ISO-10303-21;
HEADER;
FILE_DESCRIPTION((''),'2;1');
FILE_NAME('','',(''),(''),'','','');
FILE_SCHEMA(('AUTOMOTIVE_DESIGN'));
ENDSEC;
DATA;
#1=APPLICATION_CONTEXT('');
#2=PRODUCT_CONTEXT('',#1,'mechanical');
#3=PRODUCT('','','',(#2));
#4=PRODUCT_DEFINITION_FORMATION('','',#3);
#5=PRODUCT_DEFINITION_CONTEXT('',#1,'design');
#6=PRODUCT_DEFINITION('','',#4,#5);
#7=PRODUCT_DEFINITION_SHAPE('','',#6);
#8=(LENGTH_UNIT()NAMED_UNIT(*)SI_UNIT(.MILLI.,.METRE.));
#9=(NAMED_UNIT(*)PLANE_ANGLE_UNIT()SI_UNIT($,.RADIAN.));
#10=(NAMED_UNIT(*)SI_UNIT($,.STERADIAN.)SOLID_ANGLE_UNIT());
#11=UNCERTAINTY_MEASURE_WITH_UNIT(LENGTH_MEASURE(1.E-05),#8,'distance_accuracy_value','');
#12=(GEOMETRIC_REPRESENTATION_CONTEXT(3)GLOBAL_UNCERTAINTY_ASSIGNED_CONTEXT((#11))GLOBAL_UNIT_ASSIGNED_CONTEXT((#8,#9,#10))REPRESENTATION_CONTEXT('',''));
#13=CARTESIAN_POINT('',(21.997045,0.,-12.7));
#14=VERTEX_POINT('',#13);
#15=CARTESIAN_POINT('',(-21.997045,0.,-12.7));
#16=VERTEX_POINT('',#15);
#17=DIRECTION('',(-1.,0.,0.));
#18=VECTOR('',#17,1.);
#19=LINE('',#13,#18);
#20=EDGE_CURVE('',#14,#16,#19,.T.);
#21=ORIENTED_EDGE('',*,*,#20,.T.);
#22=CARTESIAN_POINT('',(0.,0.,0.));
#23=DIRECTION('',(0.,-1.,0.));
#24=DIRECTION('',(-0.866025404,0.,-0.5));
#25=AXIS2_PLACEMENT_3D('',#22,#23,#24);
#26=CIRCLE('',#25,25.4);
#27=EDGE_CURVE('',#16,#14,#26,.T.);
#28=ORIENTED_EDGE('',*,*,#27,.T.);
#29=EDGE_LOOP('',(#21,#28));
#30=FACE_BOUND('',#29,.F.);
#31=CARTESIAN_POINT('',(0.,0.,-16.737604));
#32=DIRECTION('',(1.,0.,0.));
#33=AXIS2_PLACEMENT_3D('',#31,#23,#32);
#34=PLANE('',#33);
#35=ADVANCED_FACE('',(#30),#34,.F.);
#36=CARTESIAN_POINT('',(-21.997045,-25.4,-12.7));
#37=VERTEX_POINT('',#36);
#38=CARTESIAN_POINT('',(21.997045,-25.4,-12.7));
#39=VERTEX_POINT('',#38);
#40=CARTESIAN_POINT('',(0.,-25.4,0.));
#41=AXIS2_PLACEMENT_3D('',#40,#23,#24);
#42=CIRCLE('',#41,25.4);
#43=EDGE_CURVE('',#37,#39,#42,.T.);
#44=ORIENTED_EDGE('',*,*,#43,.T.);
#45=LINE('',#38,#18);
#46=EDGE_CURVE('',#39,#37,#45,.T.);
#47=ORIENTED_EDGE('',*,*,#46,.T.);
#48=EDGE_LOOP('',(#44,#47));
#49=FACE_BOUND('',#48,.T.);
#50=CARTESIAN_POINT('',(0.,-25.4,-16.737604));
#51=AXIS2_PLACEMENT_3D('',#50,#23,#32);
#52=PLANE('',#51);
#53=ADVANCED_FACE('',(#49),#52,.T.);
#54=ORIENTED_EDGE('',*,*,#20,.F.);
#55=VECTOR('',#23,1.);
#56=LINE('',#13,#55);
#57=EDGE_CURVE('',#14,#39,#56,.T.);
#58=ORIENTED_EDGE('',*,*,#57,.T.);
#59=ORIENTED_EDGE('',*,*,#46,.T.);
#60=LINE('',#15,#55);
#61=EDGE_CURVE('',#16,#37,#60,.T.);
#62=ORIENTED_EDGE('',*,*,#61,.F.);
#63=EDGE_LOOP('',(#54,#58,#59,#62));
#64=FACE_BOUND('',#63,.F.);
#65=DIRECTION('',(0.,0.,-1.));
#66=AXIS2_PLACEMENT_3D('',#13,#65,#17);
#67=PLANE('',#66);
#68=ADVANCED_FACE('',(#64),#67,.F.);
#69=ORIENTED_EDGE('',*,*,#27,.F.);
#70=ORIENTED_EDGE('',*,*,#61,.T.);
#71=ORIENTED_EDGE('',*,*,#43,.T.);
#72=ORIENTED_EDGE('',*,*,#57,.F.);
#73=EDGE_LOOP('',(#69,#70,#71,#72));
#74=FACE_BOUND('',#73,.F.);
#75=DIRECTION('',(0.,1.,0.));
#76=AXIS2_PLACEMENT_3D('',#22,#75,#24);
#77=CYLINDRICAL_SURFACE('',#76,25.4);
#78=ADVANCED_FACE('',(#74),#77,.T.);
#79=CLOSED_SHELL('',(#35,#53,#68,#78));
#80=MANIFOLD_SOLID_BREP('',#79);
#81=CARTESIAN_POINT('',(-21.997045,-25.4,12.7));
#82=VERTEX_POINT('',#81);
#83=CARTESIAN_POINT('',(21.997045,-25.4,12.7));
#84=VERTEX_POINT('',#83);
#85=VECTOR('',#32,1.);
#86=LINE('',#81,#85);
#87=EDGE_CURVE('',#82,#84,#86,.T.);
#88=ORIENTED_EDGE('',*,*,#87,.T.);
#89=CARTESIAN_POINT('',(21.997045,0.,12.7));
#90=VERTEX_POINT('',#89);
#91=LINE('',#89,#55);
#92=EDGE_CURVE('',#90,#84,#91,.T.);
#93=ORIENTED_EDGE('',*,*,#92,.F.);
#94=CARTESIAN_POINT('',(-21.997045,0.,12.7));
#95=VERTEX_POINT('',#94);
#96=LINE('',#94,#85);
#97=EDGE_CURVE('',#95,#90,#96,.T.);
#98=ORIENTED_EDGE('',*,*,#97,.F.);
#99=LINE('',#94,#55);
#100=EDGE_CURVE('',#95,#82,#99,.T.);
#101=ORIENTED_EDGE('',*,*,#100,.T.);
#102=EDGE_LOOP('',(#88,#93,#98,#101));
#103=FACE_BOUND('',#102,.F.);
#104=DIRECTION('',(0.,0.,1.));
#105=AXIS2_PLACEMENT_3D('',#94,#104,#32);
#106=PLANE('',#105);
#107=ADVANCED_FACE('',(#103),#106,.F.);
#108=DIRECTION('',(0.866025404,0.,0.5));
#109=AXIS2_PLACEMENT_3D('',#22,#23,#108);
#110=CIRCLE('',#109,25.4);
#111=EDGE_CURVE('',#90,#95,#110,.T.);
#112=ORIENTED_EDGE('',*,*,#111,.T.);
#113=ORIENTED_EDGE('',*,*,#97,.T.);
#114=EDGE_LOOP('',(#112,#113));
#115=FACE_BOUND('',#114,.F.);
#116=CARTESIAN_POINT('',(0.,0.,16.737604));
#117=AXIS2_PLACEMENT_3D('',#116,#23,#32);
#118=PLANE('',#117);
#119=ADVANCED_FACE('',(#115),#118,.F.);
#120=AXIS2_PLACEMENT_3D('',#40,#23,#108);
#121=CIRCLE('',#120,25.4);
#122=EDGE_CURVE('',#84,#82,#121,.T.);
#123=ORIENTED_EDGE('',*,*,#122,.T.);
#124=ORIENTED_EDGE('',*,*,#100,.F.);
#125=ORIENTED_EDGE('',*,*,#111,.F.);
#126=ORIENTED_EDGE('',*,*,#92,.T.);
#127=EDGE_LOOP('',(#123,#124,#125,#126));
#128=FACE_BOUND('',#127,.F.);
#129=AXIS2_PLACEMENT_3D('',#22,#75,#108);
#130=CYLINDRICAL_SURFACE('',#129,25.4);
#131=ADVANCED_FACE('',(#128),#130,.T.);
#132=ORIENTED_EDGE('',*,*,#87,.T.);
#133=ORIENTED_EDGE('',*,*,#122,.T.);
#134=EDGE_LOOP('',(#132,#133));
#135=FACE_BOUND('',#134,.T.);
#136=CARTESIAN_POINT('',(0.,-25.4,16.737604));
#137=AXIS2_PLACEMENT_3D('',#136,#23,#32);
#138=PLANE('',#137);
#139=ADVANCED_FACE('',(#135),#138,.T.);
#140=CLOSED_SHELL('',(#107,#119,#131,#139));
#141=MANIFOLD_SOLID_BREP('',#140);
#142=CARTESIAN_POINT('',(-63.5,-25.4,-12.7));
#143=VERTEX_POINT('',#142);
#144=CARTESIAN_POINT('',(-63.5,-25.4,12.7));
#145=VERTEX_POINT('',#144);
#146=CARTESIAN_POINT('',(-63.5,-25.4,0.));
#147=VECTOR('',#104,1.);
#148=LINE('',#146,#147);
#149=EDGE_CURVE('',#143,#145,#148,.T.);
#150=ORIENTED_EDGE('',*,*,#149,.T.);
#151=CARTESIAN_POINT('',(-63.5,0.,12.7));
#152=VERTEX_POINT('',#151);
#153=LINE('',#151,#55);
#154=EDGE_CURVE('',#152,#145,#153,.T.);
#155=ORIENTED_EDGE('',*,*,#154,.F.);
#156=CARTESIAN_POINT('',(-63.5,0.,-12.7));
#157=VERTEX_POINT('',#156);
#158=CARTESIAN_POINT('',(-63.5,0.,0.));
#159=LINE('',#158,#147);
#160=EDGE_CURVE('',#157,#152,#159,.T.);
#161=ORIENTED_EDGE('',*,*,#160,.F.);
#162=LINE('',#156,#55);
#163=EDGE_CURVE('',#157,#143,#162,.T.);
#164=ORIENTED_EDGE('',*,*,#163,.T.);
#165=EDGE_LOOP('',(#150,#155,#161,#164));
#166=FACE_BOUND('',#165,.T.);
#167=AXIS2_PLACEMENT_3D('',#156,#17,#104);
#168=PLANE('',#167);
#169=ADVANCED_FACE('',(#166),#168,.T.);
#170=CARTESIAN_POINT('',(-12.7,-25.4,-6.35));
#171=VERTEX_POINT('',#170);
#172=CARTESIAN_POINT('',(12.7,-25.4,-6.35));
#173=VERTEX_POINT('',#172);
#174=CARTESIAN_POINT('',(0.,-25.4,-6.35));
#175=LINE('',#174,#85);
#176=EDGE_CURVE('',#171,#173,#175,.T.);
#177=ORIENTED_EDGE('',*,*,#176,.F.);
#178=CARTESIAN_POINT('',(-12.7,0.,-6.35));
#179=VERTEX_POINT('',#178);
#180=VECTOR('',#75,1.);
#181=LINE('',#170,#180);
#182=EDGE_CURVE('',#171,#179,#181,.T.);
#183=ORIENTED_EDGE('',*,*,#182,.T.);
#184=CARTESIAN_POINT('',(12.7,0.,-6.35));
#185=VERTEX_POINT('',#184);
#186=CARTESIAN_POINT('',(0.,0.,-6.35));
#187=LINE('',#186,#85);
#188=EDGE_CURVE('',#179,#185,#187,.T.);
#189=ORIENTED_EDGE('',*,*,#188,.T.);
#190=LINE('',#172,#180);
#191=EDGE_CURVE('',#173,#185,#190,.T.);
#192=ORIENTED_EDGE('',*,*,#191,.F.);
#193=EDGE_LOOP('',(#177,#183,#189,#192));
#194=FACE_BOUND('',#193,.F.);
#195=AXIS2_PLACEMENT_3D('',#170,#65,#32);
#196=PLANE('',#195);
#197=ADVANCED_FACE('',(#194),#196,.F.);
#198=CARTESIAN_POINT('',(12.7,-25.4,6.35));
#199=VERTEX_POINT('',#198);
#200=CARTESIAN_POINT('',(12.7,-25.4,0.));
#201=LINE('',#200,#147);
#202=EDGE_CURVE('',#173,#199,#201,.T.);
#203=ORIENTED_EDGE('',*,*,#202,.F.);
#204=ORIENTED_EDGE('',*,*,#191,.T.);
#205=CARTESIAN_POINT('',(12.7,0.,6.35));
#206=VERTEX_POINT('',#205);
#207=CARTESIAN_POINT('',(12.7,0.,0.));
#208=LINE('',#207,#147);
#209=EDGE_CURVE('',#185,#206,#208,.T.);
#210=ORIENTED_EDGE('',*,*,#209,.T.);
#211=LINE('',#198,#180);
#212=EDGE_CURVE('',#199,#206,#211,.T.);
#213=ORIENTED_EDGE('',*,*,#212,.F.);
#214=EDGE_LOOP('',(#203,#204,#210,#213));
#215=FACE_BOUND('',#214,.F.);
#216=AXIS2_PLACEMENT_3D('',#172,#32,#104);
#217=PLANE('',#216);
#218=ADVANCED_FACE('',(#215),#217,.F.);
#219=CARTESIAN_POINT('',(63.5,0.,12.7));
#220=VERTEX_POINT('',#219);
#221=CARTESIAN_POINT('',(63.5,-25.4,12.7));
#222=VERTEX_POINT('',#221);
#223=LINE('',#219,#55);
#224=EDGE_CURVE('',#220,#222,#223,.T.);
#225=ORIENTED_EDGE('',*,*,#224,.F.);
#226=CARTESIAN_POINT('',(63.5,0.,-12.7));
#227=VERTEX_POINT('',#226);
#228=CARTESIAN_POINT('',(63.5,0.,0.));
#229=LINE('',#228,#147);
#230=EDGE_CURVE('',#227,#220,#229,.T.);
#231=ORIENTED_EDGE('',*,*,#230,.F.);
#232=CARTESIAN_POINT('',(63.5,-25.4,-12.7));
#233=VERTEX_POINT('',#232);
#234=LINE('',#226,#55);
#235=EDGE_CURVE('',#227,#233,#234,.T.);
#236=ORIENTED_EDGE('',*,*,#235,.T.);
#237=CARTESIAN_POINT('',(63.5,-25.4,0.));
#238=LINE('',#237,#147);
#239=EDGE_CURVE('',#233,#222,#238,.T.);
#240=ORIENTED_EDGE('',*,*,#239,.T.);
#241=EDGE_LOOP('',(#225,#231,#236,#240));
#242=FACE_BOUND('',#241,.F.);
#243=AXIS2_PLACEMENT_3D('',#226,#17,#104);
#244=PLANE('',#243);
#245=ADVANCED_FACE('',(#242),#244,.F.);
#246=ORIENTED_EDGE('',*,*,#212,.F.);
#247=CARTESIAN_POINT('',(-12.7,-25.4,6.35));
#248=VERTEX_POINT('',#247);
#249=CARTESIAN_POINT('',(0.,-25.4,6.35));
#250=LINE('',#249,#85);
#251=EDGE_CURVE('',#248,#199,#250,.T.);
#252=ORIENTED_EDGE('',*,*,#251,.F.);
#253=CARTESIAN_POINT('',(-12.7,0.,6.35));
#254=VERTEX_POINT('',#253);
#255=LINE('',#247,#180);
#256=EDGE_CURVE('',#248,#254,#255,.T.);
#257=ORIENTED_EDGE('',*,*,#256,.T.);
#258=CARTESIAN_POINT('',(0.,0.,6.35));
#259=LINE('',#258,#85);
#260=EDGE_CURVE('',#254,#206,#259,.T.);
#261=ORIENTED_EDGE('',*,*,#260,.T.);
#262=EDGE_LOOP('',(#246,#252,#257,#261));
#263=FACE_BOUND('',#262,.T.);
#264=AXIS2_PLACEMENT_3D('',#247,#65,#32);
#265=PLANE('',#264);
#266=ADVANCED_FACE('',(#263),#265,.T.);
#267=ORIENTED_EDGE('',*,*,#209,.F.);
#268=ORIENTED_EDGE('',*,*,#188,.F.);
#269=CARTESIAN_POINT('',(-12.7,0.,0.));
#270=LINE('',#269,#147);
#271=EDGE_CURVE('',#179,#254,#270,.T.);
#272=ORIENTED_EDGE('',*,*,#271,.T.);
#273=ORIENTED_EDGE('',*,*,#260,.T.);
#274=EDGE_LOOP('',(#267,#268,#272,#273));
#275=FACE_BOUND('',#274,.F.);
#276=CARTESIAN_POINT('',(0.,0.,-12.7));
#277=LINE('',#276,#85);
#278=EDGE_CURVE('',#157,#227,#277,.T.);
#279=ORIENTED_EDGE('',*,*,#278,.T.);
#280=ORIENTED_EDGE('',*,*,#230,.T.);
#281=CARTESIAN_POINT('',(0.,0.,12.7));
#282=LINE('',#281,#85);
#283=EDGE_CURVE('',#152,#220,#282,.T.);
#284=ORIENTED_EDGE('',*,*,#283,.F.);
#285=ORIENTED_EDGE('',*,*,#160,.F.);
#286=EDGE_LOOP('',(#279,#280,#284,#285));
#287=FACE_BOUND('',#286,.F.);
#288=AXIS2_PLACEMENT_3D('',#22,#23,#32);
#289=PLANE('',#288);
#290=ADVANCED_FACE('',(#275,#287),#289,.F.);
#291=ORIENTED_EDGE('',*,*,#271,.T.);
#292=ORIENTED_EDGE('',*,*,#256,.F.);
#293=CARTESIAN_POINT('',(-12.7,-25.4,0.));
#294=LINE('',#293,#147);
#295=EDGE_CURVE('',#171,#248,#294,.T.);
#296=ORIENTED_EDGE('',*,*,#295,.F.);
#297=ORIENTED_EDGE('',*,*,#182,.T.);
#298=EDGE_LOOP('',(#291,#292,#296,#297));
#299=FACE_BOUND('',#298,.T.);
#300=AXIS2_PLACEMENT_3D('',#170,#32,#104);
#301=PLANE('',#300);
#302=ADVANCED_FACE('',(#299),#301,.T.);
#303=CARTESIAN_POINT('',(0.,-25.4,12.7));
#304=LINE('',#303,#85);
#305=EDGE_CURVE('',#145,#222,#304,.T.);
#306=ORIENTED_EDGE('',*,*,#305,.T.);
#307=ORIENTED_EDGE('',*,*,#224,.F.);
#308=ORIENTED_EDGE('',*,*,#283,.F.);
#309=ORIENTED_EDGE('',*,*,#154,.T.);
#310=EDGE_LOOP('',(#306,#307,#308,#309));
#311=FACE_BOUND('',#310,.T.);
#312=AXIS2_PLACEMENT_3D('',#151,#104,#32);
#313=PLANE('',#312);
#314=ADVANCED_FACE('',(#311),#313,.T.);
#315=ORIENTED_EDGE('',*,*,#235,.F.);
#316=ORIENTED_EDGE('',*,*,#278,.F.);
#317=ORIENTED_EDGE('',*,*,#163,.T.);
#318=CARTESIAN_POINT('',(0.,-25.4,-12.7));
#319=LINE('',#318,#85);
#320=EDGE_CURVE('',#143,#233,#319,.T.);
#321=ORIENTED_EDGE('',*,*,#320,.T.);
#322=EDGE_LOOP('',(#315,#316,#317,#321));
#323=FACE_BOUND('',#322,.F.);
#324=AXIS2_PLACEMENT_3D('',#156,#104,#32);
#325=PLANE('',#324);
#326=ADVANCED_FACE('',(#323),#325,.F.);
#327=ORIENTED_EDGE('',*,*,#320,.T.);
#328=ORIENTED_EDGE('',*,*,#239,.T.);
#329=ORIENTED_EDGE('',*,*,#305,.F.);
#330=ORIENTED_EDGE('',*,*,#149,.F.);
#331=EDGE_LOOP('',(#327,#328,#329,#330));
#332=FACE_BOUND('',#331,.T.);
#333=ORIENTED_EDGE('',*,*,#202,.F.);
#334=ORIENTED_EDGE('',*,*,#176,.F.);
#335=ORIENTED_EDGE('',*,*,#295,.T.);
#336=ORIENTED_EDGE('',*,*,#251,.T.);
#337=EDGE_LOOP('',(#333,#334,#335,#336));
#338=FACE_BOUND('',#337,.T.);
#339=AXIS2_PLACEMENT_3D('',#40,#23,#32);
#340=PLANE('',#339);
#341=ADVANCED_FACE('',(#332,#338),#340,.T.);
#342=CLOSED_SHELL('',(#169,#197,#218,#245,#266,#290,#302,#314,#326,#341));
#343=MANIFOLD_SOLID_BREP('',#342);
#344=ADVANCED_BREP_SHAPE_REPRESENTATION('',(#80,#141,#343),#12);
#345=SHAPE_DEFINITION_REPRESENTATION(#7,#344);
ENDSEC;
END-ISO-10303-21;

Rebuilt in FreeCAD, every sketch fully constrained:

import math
import FreeCAD as App
import Part
import Sketcher
from FreeCAD import Vector
Q = App.Units.Quantity


def add_polygon(sketch, points):
    """Adds a closed chain of lines whose ends are joined by coincident constraints."""
    first, n = sketch.GeometryCount, len(points)
    for a, b in zip(points, points[1:] + points[:1]):
        sketch.addGeometry(Part.LineSegment(App.Vector(*a, 0), App.Vector(*b, 0)), False)
    for i in range(n):
        sketch.addConstraint(Sketcher.Constraint("Coincident", first + i, 2, first + (i + 1) % n, 1))

doc = App.newDocument("Part")
body = doc.addObject("PartDesign::Body", "Body")

sketch1 = body.newObject("Sketcher::SketchObject", "Sketch")
sketch1.AttachmentSupport = (doc.getObject("XZ_Plane"), [""])
sketch1.MapMode = "FlatFace"
add_polygon(sketch1, [(-64, 13), (-64, -13), (64, -13), (64, 13)])
sketch1.addConstraint([
    Sketcher.Constraint("Vertical", 0),
    Sketcher.Constraint("Horizontal", 1),
    Sketcher.Constraint("Vertical", 2),
    Sketcher.Constraint("Horizontal", 3),
    Sketcher.Constraint("Symmetric", 0, 2, 2, 2, -1, 1),
    Sketcher.Constraint("DistanceX", 1, 1, 1, 2, Q("5 in")),
    Sketcher.Constraint("DistanceY", 0, 2, 0, 1, Q("1 in")),
])
pad1 = body.newObject("PartDesign::Pad", "Pad")
pad1.Profile = sketch1
pad1.Length = Q("1 in")

sketch2 = body.newObject("Sketcher::SketchObject", "Sketch001")
sketch2.AttachmentSupport = (doc.getObject("XZ_Plane"), [""])
sketch2.MapMode = "FlatFace"
sketch2.AttachmentOffset = App.Placement(Vector(0, 0, 1 * 25.4), App.Rotation())
add_polygon(sketch2, [(-13, 6), (-13, -6), (13, -6), (13, 6)])
sketch2.addConstraint([
    Sketcher.Constraint("Vertical", 0),
    Sketcher.Constraint("Horizontal", 1),
    Sketcher.Constraint("Vertical", 2),
    Sketcher.Constraint("Horizontal", 3),
    Sketcher.Constraint("Symmetric", 0, 2, 2, 2, -1, 1),
    Sketcher.Constraint("DistanceX", 1, 1, 1, 2, Q("1 in")),
    Sketcher.Constraint("DistanceY", 0, 2, 0, 1, Q("0.5 in")),
])
pocket1 = body.newObject("PartDesign::Pocket", "Pocket")
pocket1.Profile = sketch2
pocket1.Length = Q("1 in")
body2 = doc.addObject("PartDesign::Body", "Body001")

sketch3 = body2.newObject("Sketcher::SketchObject", "Sketch002")
sketch3.AttachmentSupport = (doc.getObject("XZ_Plane001"), [""])
sketch3.MapMode = "FlatFace"
sketch3.addGeometry([
    Part.LineSegment(Vector(-22, 13, 0), Vector(22, 13, 0)),
    Part.ArcOfCircle(Part.Circle(Vector(0, 0, 0), Vector(0, 0, 1), 25), math.radians(30), math.radians(150)),
], False)
sketch3.addConstraint([
    Sketcher.Constraint("Coincident", 0, 1, 1, 2),
    Sketcher.Constraint("Coincident", 1, 1, 0, 2),
    Sketcher.Constraint("Horizontal", 0),
    Sketcher.Constraint("Coincident", 1, 3, -1, 1),
    Sketcher.Constraint("Radius", 1, Q("1 in")),
    Sketcher.Constraint("DistanceY", -1, 1, 0, 1, Q("0.5 in")),
])
pad2 = body2.newObject("PartDesign::Pad", "Pad001")
pad2.Profile = sketch3
pad2.Length = Q("1 in")
body3 = doc.addObject("PartDesign::Body", "Body002")

sketch4 = body3.newObject("Sketcher::SketchObject", "Sketch003")
sketch4.AttachmentSupport = (doc.getObject("XZ_Plane002"), [""])
sketch4.MapMode = "FlatFace"
sketch4.addGeometry([
    Part.ArcOfCircle(Part.Circle(Vector(0, 0, 0), Vector(0, 0, 1), 25), math.radians(-150), math.radians(-30)),
    Part.LineSegment(Vector(22, -13, 0), Vector(-22, -13, 0)),
], False)
sketch4.addConstraint([
    Sketcher.Constraint("Coincident", 0, 1, 1, 2),
    Sketcher.Constraint("Coincident", 1, 1, 0, 2),
    Sketcher.Constraint("Horizontal", 1),
    Sketcher.Constraint("Coincident", 0, 3, -1, 1),
    Sketcher.Constraint("Radius", 0, Q("1 in")),
    Sketcher.Constraint("DistanceY", 0, 1, -1, 1, Q("0.5 in")),
])
pad3 = body3.newObject("PartDesign::Pad", "Pad002")
pad3.Profile = sketch4
pad3.Length = Q("1 in")

doc.recompute()
